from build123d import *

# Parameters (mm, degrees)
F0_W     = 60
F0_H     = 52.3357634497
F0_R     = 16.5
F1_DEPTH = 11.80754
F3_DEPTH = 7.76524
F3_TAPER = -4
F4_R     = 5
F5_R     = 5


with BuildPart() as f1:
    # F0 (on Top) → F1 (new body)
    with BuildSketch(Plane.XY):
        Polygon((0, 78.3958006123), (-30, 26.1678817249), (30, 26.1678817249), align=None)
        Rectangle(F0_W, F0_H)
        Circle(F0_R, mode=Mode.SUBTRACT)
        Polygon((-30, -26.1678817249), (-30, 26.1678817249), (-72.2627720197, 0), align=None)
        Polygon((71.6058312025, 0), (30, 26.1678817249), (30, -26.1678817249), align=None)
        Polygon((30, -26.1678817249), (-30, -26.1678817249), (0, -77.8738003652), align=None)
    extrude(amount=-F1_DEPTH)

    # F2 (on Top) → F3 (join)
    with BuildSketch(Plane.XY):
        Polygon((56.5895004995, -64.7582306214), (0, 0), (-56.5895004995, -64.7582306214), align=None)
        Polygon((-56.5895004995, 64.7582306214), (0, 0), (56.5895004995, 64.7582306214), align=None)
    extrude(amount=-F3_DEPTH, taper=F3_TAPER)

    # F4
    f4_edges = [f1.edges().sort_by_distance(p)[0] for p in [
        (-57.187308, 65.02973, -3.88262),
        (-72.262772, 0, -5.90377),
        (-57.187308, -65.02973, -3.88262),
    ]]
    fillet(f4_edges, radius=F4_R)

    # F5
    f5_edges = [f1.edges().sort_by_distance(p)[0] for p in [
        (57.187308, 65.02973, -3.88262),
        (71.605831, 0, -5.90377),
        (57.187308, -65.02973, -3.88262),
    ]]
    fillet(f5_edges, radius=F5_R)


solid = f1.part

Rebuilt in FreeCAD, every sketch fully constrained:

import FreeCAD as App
import Part
import Sketcher

V = App.Vector
Q = App.Units.Quantity


def edges_at(feature, points):
    """Names of the edges that pass closest to the given points."""
    edges = feature.Shape.Edges
    near = lambda p: min(range(len(edges)), key=lambda i: edges[i].distToShape(Part.Vertex(*p))[0])
    return sorted({f"Edge{near(p) + 1}" for p in points})


def add_polygon(sketch, points):
    """Adds a closed chain of lines whose ends are joined by coincident constraints."""
    first, n = sketch.GeometryCount, len(points)
    for a, b in zip(points, points[1:] + points[:1]):
        sketch.addGeometry(Part.LineSegment(App.Vector(*a, 0), App.Vector(*b, 0)), False)
    for i in range(n):
        sketch.addConstraint(Sketcher.Constraint("Coincident", first + i, 2, first + (i + 1) % n, 1))

doc = App.newDocument("Part")
params = doc.addObject("Spreadsheet::Sheet", "Params")
for row, (alias, value) in enumerate([
    ("sketch1_diameter", "33 mm"),
    ("pad1_length", "11.80754 mm"),
    ("sketch2_length", "86 mm"),
    ("pad2_length", "7.76524 mm"),
    ("pad2_taper", "4 deg"),
    ("fillet_radius", "5 mm"),
    ("fillet2_radius", "5 mm"),
], start=1):
    params.set(f"A{row}", alias)
    params.set(f"B{row}", "=" + value)
    params.setAlias(f"B{row}", alias)

body = doc.addObject("PartDesign::Body", "Body")

# Sketch on XY plane
sketch1 = body.newObject("Sketcher::SketchObject", "Sketch")
sketch1.AttachmentSupport = (doc.getObject("XY_Plane"), [""])
sketch1.MapMode = "FlatFace"
add_polygon(sketch1, [(0, 78.395801), (-30, 26.167882), (-72.262772, 0), (-30, -26.167882), (0, -77.8738), (30, -26.167882), (71.605831, 0), (30, 26.167882)])  # lines 0-7
sketch1.addGeometry(Part.Circle(V(0, 0, 0), V(0, 0, 1), 16.5), False)  # 8
sketch1.addConstraint(Sketcher.Constraint("Coincident", 8, 3, -1, 1))
sketch1.addConstraint(Sketcher.Constraint("Symmetric", 0, 2, 4, 2, -1, 1))
sketch1.addConstraint(Sketcher.Constraint("Symmetric", 2, 2, 6, 2, -1, 1))
sketch1.addConstraint(Sketcher.Constraint("Symmetric", 2, 2, 4, 2, -2))
sketch1.addConstraint(Sketcher.Constraint("PointOnObject", 1, 2, -1))
sketch1.addConstraint(Sketcher.Constraint("PointOnObject", 3, 2, -2))
sketch1.addConstraint(Sketcher.Constraint("PointOnObject", 5, 2, -1))
sketch1.addConstraint(Sketcher.Constraint("PointOnObject", 7, 2, -2))
sketch1.addConstraint(Sketcher.Constraint("Diameter", 8, Q("33 mm")))
sketch1.addConstraint(Sketcher.Constraint("DistanceX", 0, 2, -1, 1, Q("30 mm")))
sketch1.addConstraint(Sketcher.Constraint("DistanceY", 3, 2, -1, 1, Q("77.8738 mm")))
sketch1.addConstraint(Sketcher.Constraint("DistanceY", -1, 1, 7, 2, Q("78.395801 mm")))
sketch1.addConstraint(Sketcher.Constraint("Distance", 0, Q("60.230852 mm")))
sketch1.addConstraint(Sketcher.Constraint("Distance", 5, Q("49.150821 mm")))
sketch1.addConstraint(Sketcher.Constraint("Distance", 1, Q("49.708148 mm")))
sketch1.setExpression("Constraints[16]", "Params.sketch1_diameter")
pad1 = body.newObject("PartDesign::Pad", "Pad")
pad1.Profile = sketch1
pad1.setExpression("Length", "Params.pad1_length")
pad1.Reversed = True

# Sketch on XY plane
sketch2 = body.newObject("Sketcher::SketchObject", "Sketch001")
sketch2.AttachmentSupport = (doc.getObject("XY_Plane"), [""])
sketch2.MapMode = "FlatFace"
add_polygon(sketch2, [(56.5895, -64.758231), (0, 0), (-56.5895, -64.758231)])  # lines 0-2
add_polygon(sketch2, [(-56.5895, 64.758231), (0, 0), (56.5895, 64.758231)])  # lines 3-5
sketch2.addConstraint(Sketcher.Constraint("Horizontal", 2))
sketch2.addConstraint(Sketcher.Constraint("Horizontal", 5))
sketch2.addConstraint(Sketcher.Constraint("Coincident", 0, 2, -1, 1))
sketch2.addConstraint(Sketcher.Constraint("Coincident", 3, 2, -1, 1))
sketch2.addConstraint(Sketcher.Constraint("Symmetric", 1, 2, 4, 2, -1, 1))
sketch2.addConstraint(Sketcher.Constraint("Parallel", 0, 3))
sketch2.addConstraint(Sketcher.Constraint("Vertical", 2, 2, 4, 2))
sketch2.addConstraint(Sketcher.Constraint("Distance", 0, Q("86 mm")))
sketch2.addConstraint(Sketcher.Constraint("DistanceX", 2, 1, 2, 2, Q("113.179001 mm")))
sketch2.setExpression("Constraints[13]", "Params.sketch2_length")
pad2 = body.newObject("PartDesign::Pad", "Pad001")
pad2.Profile = sketch2
pad2.setExpression("Length", "Params.pad2_length")
pad2.Reversed = True
pad2.setExpression("TaperAngle", "Params.pad2_taper")
doc.recompute()

fillet = body.newObject("PartDesign::Fillet", "Fillet")
fillet.Base = (pad2, edges_at(pad2, [(-57.187, 65.03, -3.883), (-72.263, 0, -5.904), (-57.187, -65.03, -3.883)]))
fillet.setExpression("Radius", "Params.fillet_radius")
doc.recompute()

fillet2 = body.newObject("PartDesign::Fillet", "Fillet001")
fillet2.Base = (fillet, edges_at(fillet, [(57.187, 65.03, -3.883), (71.606, 0, -5.904), (57.187, -65.03, -3.883)]))
fillet2.setExpression("Radius", "Params.fillet2_radius")

doc.recompute()
